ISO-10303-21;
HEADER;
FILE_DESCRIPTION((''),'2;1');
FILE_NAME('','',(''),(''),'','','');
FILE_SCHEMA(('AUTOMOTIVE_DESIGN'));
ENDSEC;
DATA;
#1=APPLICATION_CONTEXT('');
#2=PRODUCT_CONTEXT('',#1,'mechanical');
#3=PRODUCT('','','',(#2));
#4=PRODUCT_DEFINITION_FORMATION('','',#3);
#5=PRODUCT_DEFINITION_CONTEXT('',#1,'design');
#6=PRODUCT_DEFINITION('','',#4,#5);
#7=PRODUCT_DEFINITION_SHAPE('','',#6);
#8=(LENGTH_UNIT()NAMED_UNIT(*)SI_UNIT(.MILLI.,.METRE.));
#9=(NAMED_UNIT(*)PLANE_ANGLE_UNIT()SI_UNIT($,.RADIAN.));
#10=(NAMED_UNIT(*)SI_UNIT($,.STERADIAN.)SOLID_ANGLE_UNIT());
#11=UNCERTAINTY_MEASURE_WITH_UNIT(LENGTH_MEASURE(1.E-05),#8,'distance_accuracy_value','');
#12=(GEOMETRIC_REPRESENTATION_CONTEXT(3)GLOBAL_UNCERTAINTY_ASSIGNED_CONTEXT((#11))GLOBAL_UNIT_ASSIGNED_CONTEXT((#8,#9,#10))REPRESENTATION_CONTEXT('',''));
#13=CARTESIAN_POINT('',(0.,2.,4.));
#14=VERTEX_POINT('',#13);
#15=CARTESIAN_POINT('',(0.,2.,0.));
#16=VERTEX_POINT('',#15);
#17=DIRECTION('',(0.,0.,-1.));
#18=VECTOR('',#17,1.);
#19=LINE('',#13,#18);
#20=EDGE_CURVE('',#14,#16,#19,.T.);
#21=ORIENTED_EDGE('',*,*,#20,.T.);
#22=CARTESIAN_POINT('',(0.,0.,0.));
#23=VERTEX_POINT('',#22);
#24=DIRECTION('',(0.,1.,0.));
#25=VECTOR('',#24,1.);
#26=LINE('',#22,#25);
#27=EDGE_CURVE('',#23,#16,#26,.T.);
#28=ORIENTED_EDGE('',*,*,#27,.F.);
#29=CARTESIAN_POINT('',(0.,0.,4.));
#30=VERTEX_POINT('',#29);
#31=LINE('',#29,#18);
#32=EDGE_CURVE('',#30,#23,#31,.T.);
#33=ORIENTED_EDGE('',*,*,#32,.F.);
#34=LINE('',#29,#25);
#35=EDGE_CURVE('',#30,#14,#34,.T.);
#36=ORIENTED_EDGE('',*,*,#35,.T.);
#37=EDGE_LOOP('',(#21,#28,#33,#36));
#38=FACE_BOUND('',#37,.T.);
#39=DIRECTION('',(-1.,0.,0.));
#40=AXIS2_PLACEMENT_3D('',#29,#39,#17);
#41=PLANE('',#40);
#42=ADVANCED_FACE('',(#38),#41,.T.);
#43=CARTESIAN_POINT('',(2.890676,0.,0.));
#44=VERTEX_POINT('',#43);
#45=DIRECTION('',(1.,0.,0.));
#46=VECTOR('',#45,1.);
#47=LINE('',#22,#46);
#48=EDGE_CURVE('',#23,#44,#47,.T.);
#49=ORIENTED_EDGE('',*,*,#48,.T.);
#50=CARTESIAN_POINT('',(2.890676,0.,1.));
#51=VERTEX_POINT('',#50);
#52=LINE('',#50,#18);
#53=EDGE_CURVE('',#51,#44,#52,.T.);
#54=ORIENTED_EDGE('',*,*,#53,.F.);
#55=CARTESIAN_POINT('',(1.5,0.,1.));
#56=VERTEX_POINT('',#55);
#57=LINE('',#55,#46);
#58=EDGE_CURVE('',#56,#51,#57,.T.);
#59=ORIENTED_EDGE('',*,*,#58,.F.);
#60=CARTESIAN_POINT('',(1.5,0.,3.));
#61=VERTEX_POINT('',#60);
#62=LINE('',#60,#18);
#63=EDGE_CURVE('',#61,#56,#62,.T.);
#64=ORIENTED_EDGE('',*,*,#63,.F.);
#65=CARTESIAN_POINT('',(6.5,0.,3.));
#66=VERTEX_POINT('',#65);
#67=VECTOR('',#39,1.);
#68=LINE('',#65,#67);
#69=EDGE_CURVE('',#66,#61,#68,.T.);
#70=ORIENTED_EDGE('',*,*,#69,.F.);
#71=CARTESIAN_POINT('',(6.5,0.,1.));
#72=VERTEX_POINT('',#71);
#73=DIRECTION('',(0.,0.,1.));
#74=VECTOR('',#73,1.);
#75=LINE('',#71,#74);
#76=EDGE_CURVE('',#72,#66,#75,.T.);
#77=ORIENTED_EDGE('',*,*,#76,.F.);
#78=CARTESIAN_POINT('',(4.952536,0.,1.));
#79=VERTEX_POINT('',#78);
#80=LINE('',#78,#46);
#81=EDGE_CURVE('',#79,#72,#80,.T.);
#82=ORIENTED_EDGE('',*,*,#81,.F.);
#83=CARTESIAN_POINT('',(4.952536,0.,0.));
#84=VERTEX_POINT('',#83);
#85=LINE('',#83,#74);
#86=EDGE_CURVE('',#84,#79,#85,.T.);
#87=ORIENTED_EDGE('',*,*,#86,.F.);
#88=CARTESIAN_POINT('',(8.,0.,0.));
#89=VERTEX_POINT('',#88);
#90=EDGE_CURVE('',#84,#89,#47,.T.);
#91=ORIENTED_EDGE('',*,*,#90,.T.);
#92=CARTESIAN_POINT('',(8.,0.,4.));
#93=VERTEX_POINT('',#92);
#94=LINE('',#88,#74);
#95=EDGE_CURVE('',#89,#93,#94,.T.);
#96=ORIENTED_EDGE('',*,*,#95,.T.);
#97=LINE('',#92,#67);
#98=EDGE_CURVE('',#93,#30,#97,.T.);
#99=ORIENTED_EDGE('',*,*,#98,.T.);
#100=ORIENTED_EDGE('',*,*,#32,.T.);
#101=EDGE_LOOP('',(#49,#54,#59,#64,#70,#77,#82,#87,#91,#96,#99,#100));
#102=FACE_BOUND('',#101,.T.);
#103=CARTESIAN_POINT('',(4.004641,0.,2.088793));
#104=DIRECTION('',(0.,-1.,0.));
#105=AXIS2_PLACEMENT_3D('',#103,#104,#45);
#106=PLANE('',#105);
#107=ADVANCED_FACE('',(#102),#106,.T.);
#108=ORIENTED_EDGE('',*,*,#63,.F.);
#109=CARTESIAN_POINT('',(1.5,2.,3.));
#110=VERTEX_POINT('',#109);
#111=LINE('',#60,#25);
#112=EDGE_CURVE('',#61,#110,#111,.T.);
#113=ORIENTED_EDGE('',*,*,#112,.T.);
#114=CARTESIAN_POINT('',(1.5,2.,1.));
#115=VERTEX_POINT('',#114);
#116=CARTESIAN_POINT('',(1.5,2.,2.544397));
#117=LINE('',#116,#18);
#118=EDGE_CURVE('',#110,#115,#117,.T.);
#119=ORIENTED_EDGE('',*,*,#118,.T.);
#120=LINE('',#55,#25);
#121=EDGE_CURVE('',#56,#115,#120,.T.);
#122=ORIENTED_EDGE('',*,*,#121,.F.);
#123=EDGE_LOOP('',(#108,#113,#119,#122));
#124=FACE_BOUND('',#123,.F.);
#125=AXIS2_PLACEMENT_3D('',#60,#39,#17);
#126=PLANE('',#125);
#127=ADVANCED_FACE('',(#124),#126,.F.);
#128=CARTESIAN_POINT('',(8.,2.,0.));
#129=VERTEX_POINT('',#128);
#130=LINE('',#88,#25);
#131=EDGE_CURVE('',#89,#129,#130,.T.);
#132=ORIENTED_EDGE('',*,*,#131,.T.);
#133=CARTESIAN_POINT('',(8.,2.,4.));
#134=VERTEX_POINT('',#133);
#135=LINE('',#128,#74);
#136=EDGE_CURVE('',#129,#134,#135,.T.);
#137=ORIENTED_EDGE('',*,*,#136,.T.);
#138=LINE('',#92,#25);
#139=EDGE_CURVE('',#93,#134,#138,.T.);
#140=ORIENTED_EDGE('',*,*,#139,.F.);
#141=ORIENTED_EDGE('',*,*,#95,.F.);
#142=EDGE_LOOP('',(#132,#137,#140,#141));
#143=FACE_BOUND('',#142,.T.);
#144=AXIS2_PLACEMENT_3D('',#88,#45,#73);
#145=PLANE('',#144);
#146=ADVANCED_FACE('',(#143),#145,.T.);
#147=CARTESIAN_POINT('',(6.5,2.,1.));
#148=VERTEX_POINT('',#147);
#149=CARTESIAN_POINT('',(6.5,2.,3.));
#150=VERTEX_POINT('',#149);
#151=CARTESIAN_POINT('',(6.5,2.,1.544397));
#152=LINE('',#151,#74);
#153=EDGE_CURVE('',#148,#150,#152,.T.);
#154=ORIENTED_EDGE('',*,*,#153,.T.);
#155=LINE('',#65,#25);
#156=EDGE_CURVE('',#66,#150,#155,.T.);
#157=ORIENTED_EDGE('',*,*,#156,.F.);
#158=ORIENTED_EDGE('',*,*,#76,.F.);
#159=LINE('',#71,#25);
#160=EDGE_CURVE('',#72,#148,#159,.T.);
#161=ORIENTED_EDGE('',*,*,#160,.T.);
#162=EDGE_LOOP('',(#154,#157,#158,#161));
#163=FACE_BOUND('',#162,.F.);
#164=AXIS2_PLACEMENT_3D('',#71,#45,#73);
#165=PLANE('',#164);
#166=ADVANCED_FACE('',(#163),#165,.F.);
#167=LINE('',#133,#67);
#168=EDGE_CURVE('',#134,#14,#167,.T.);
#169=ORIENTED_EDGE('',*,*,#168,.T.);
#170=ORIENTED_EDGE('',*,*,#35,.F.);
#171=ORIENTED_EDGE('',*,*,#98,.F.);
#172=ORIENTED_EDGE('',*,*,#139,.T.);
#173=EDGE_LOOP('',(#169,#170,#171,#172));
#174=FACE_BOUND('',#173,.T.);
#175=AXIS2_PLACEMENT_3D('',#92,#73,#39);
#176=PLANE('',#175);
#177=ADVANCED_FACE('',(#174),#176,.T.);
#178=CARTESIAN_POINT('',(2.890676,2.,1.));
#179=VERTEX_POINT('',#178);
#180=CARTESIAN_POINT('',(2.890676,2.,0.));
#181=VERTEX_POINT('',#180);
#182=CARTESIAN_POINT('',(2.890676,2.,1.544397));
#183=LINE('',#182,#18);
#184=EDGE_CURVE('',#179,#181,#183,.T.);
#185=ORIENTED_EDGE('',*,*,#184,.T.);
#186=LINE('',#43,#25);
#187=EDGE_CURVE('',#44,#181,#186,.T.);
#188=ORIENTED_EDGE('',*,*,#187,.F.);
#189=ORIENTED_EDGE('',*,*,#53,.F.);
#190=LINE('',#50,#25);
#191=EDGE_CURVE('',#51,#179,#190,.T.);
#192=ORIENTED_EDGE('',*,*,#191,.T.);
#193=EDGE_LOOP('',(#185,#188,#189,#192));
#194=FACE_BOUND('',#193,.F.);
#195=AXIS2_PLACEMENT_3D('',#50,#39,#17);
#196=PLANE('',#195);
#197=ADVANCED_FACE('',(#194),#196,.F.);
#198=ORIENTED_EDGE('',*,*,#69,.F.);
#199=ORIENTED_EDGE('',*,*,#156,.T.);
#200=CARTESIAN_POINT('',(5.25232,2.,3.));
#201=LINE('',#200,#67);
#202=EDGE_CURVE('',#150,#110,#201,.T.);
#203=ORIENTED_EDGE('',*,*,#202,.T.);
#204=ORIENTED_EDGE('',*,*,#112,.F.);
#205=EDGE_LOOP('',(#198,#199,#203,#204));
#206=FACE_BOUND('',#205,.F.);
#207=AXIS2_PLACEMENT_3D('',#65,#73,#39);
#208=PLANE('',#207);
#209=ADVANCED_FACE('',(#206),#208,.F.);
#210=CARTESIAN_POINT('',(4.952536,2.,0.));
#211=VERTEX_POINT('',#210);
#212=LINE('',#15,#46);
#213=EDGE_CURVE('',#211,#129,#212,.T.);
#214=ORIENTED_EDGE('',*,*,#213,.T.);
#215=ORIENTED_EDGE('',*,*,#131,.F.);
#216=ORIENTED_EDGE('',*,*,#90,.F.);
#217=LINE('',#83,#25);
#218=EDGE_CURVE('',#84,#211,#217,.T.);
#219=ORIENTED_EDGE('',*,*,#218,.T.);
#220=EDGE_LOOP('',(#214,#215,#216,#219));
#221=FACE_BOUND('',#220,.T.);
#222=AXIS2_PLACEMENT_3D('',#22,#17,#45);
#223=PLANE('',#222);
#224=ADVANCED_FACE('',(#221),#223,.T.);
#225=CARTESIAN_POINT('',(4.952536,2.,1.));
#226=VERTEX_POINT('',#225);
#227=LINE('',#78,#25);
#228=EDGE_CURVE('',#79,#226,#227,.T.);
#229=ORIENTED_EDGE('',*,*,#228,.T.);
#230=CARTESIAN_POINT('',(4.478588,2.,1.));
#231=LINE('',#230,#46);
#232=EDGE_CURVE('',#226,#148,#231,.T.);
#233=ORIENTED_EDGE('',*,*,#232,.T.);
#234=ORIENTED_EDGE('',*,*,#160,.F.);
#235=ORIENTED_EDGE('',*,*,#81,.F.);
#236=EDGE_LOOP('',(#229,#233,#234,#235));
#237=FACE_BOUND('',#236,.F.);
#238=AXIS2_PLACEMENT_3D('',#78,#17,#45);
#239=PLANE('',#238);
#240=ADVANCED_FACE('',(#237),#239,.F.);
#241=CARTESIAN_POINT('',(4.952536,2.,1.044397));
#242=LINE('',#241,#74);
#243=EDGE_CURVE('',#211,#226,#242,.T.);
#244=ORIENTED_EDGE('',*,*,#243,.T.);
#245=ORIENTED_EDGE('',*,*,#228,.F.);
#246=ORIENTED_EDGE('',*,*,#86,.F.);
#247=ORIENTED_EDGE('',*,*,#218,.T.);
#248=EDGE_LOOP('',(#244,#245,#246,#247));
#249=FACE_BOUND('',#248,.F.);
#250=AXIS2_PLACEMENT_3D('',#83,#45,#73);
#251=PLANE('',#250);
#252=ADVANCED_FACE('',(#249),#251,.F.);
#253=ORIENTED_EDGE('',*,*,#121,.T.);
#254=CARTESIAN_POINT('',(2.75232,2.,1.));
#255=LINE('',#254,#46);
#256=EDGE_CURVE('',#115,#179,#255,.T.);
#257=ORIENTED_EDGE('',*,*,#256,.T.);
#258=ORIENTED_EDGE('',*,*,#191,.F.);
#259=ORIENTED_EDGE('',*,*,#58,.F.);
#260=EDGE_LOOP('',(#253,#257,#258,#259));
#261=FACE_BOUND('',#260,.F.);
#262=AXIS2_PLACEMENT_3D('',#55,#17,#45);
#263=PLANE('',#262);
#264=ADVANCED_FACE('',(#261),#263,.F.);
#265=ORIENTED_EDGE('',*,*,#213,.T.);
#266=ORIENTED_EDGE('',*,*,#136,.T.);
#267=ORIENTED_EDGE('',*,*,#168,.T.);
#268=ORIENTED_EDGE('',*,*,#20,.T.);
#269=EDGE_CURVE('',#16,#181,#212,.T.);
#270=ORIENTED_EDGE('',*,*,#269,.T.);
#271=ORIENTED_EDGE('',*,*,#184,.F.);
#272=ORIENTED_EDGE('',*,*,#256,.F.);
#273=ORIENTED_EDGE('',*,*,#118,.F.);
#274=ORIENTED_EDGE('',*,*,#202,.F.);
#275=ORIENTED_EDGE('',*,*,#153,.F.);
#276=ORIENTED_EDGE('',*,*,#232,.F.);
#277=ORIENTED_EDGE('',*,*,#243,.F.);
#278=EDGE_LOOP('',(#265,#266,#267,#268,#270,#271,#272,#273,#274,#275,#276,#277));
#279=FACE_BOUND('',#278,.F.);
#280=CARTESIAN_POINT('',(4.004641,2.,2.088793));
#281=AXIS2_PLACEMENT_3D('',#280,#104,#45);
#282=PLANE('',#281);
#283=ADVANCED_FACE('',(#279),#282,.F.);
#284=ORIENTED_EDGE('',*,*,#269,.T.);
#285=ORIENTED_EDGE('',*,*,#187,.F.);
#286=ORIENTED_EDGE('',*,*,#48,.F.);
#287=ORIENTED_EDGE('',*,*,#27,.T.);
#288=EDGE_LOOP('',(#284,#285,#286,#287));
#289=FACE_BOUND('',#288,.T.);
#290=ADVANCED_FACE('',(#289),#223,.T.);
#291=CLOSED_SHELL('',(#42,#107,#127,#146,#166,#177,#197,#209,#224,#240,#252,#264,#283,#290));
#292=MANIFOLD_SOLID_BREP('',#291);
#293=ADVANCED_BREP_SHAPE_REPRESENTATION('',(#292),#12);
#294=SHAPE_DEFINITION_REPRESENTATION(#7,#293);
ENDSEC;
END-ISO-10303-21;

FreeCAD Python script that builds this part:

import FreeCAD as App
import Part
import Sketcher

doc = App.newDocument("Part")
body = doc.addObject("PartDesign::Body", "Body")

sketch1 = body.newObject("Sketcher::SketchObject", "Sketch")
sketch1.AttachmentSupport = (doc.getObject("XZ_Plane"), [""])
sketch1.MapMode = "FlatFace"
sketch1.addGeometry([
    Part.LineSegment(App.Vector(0, 4, 0), App.Vector(0, 0, 0)),
    Part.LineSegment(App.Vector(0, 0, 0), App.Vector(8, 0, 0)),
    Part.LineSegment(App.Vector(8, 0, 0), App.Vector(8, 4, 0)),
    Part.LineSegment(App.Vector(8, 4, 0), App.Vector(0, 4, 0)),
], False)
sketch1.addConstraint([
    Sketcher.Constraint("Coincident", 0, 2, 1, 1),
    Sketcher.Constraint("Coincident", 1, 2, 2, 1),
    Sketcher.Constraint("Coincident", 2, 2, 3, 1),
    Sketcher.Constraint("Coincident", 3, 2, 0, 1),
    Sketcher.Constraint("Vertical", 0),
    Sketcher.Constraint("Horizontal", 1),
    Sketcher.Constraint("Vertical", 2),
    Sketcher.Constraint("Horizontal", 3),
    Sketcher.Constraint("Coincident", 0, 2, -1, 1),
    Sketcher.Constraint("DistanceX", 1, 1, 1, 2, 8.0),
    Sketcher.Constraint("DistanceY", 0, 2, 0, 1, 4.0),
])
pad1 = body.newObject("PartDesign::Pad", "Pad")
pad1.Profile = sketch1
pad1.Length = 2
pad1.Reversed = True

sketch2 = body.newObject("Sketcher::SketchObject", "Sketch001")
sketch2.AttachmentSupport = (doc.getObject("XZ_Plane"), [""])
sketch2.MapMode = "FlatFace"
sketch2.addGeometry([
    Part.LineSegment(App.Vector(2.9, 1, 0), App.Vector(2.9, 0, 0)),
    Part.LineSegment(App.Vector(2.9, 0, 0), App.Vector(5, 0, 0)),
    Part.LineSegment(App.Vector(5, 0, 0), App.Vector(5, 1, 0)),
    Part.LineSegment(App.Vector(5, 1, 0), App.Vector(6.5, 1, 0)),
    Part.LineSegment(App.Vector(6.5, 1, 0), App.Vector(6.5, 3, 0)),
    Part.LineSegment(App.Vector(6.5, 3, 0), App.Vector(1.5, 3, 0)),
    Part.LineSegment(App.Vector(1.5, 3, 0), App.Vector(1.5, 1, 0)),
    Part.LineSegment(App.Vector(1.5, 1, 0), App.Vector(2.9, 1, 0)),
], False)
sketch2.addConstraint([
    Sketcher.Constraint("Coincident", 0, 2, 1, 1),
    Sketcher.Constraint("Coincident", 1, 2, 2, 1),
    Sketcher.Constraint("Coincident", 2, 2, 3, 1),
    Sketcher.Constraint("Coincident", 3, 2, 4, 1),
    Sketcher.Constraint("Coincident", 4, 2, 5, 1),
    Sketcher.Constraint("Coincident", 5, 2, 6, 1),
    Sketcher.Constraint("Coincident", 6, 2, 7, 1),
    Sketcher.Constraint("Coincident", 7, 2, 0, 1),
    Sketcher.Constraint("Vertical", 0),
    Sketcher.Constraint("Horizontal", 1),
    Sketcher.Constraint("Vertical", 2),
    Sketcher.Constraint("Horizontal", 3),
    Sketcher.Constraint("Vertical", 4),
    Sketcher.Constraint("Horizontal", 5),
    Sketcher.Constraint("Vertical", 6),
    Sketcher.Constraint("Horizontal", 7),
    Sketcher.Constraint("PointOnObject", 0, 2, -1),
    Sketcher.Constraint("Horizontal", 3, 2, 6, 2),
    Sketcher.Constraint("DistanceX", 5, 2, 5, 1, 5.0),
    Sketcher.Constraint("DistanceY", 0, 2, 0, 1, 1.0),
    Sketcher.Constraint("DistanceY", 4, 1, 4, 2, 2.0),
    Sketcher.Constraint("DistanceX", -1, 1, 3, 2, 6.5),
    Sketcher.Constraint("DistanceX", 1, 1, 1, 2, 2.06186),
    Sketcher.Constraint("DistanceX", 3, 1, 3, 2, 1.547464),
])
pocket1 = body.newObject("PartDesign::Pocket", "Pocket")
pocket1.Profile = sketch2
pocket1.Length = 25

doc.recompute()
